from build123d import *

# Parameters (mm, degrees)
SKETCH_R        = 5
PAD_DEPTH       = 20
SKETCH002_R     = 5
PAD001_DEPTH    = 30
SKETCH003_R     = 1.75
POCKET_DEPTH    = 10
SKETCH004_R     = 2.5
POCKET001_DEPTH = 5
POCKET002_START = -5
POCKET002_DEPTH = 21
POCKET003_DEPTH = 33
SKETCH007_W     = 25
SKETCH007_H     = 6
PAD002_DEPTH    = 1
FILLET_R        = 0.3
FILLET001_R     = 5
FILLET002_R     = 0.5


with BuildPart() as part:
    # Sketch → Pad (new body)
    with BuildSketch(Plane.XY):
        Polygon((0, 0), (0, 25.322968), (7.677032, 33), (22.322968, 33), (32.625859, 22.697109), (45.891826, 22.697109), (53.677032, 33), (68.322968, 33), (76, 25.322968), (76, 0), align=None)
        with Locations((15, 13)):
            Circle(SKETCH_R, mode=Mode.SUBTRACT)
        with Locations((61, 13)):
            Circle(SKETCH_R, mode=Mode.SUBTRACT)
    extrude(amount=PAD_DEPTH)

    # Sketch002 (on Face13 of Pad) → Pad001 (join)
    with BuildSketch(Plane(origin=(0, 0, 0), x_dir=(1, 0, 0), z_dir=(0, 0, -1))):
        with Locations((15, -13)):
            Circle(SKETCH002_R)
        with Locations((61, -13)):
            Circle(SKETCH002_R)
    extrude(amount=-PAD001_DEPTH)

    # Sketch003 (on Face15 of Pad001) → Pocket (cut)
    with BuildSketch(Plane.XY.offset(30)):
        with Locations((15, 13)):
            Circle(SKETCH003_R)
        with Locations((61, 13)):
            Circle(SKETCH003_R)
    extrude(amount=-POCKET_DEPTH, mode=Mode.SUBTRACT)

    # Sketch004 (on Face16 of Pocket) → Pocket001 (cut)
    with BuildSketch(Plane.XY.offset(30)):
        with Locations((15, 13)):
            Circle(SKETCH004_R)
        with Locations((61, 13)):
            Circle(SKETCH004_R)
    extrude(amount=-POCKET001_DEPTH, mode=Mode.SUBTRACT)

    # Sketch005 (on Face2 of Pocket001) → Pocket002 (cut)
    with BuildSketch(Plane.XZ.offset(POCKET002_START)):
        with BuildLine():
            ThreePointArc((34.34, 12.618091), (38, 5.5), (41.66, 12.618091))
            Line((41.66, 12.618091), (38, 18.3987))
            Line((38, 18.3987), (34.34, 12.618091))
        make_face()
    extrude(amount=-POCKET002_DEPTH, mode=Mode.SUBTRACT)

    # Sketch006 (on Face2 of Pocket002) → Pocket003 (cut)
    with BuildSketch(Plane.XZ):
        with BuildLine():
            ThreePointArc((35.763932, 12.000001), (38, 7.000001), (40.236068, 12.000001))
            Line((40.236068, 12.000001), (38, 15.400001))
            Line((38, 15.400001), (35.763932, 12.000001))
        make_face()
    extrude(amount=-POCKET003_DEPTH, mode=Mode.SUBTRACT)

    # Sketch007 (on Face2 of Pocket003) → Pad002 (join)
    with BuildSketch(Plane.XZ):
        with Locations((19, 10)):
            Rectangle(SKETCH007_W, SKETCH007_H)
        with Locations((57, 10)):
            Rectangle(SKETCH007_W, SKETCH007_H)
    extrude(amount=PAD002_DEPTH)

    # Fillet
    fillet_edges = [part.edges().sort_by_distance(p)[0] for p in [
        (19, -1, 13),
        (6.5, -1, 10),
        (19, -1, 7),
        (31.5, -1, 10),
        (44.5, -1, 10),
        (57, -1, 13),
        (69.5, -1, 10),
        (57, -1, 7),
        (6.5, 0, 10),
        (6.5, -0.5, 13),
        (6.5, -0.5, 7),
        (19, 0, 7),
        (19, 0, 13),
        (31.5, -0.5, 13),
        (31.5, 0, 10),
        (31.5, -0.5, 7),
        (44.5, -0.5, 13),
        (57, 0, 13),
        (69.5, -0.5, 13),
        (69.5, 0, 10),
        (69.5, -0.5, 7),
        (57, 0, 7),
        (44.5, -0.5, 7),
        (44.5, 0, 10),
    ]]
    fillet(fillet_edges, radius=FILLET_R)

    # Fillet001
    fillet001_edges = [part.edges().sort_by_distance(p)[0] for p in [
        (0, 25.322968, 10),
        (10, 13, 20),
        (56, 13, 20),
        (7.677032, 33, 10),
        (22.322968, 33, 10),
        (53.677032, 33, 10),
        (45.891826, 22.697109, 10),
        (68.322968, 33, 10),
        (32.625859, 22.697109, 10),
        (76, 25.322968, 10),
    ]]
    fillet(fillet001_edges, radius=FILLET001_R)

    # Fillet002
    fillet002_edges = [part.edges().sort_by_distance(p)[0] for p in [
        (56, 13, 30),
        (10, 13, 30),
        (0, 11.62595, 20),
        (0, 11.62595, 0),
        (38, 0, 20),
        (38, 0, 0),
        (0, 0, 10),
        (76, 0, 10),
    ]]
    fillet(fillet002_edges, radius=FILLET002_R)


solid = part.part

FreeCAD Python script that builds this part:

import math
import FreeCAD as App
import Part
import Sketcher
Q = App.Units.Quantity


def edges_at(feature, points):
    """Names of the edges that pass closest to the given points."""
    edges = feature.Shape.Edges
    near = lambda p: min(range(len(edges)), key=lambda i: edges[i].distToShape(Part.Vertex(*p))[0])
    return sorted({f"Edge{near(p) + 1}" for p in points})

doc = App.newDocument("Part")
body = doc.addObject("PartDesign::Body", "Body")

sketch1 = body.newObject("Sketcher::SketchObject", "Sketch")
sketch1.AttachmentSupport = (doc.getObject("XY_Plane"), [""])
sketch1.MapMode = "FlatFace"
sketch1.addGeometry(Part.LineSegment(App.Vector(0, 25, 0), App.Vector(0, 0, 0)), False)
sketch1.addGeometry(Part.LineSegment(App.Vector(0, 0, 0), App.Vector(76, 0, 0)), False)
sketch1.addGeometry(Part.LineSegment(App.Vector(76, 0, 0), App.Vector(76, 25, 0)), False)
sketch1.addGeometry(Part.LineSegment(App.Vector(76, 25, 0), App.Vector(68, 33, 0)), False)
sketch1.addGeometry(Part.LineSegment(App.Vector(68, 33, 0), App.Vector(54, 33, 0)), False)
sketch1.addGeometry(Part.LineSegment(App.Vector(54, 33, 0), App.Vector(46, 23, 0)), False)
sketch1.addGeometry(Part.LineSegment(App.Vector(46, 23, 0), App.Vector(33, 23, 0)), False)
sketch1.addGeometry(Part.LineSegment(App.Vector(33, 23, 0), App.Vector(22, 33, 0)), False)
sketch1.addGeometry(Part.LineSegment(App.Vector(22, 33, 0), App.Vector(8, 33, 0)), False)
sketch1.addGeometry(Part.LineSegment(App.Vector(8, 33, 0), App.Vector(0, 25, 0)), False)
sketch1.addGeometry(Part.Circle(App.Vector(61, 13, 0), App.Vector(0, 0, 1), 5), False)
sketch1.addGeometry(Part.Circle(App.Vector(15, 13, 0), App.Vector(0, 0, 1), 5), False)
sketch1.addConstraint(Sketcher.Constraint("Coincident", 0, 2, 1, 1))
sketch1.addConstraint(Sketcher.Constraint("Coincident", 1, 2, 2, 1))
sketch1.addConstraint(Sketcher.Constraint("Coincident", 2, 2, 3, 1))
sketch1.addConstraint(Sketcher.Constraint("Coincident", 3, 2, 4, 1))
sketch1.addConstraint(Sketcher.Constraint("Coincident", 4, 2, 5, 1))
sketch1.addConstraint(Sketcher.Constraint("Coincident", 5, 2, 6, 1))
sketch1.addConstraint(Sketcher.Constraint("Coincident", 6, 2, 7, 1))
sketch1.addConstraint(Sketcher.Constraint("Coincident", 7, 2, 8, 1))
sketch1.addConstraint(Sketcher.Constraint("Coincident", 8, 2, 9, 1))
sketch1.addConstraint(Sketcher.Constraint("Coincident", 9, 2, 0, 1))
sketch1.addConstraint(Sketcher.Constraint("Vertical", 0))
sketch1.addConstraint(Sketcher.Constraint("Horizontal", 1))
sketch1.addConstraint(Sketcher.Constraint("Vertical", 2))
sketch1.addConstraint(Sketcher.Constraint("Horizontal", 4))
sketch1.addConstraint(Sketcher.Constraint("Horizontal", 6))
sketch1.addConstraint(Sketcher.Constraint("Horizontal", 8))
sketch1.addConstraint(Sketcher.Constraint("Coincident", 0, 2, -1, 1))
sketch1.addConstraint(Sketcher.Constraint("Equal", 10, 11))
sketch1.addConstraint(Sketcher.Constraint("Parallel", 3, 7))
sketch1.addConstraint(Sketcher.Constraint("Perpendicular", 7, 9))
sketch1.addConstraint(Sketcher.Constraint("Horizontal", 10, 3, 11, 3))
sketch1.addConstraint(Sketcher.Constraint("Horizontal", 4, 2, 7, 2))
sketch1.addConstraint(Sketcher.Constraint("Horizontal", 2, 2, 9, 2))
sketch1.addConstraint(Sketcher.Constraint("Equal", 4, 8))
sketch1.addConstraint(Sketcher.Constraint("Equal", 3, 9))
sketch1.addConstraint(Sketcher.Constraint("Diameter", 10, Q("10 mm")))
sketch1.addConstraint(Sketcher.Constraint("DistanceX", 1, 1, 1, 2, Q("76 mm")))
sketch1.addConstraint(Sketcher.Constraint("DistanceX", -1, 1, 10, 3, Q("61 mm")))
sketch1.addConstraint(Sketcher.Constraint("DistanceY", -1, 1, 10, 3, Q("13 mm")))
sketch1.addConstraint(Sketcher.Constraint("DistanceX", -1, 1, 11, 3, Q("15 mm")))
sketch1.addConstraint(Sketcher.Constraint("DistanceY", -1, 1, 3, 2, Q("33 mm")))
sketch1.addConstraint(Sketcher.Constraint("Distance", 5, Q("12.91352 mm")))
sketch1.addConstraint(Sketcher.Constraint("Distance", 7, Q("14.570488 mm")))
sketch1.addConstraint(Sketcher.Constraint("DistanceX", 4, 2, 4, 1, Q("14.645936 mm")))
sketch1.addConstraint(Sketcher.Constraint("DistanceX", 6, 2, 6, 1, Q("13.265967 mm")))
pad1 = body.newObject("PartDesign::Pad", "Pad")
pad1.Profile = sketch1
pad1.Length = 20

sketch2 = body.newObject("Sketcher::SketchObject", "Sketch001")
sketch2.AttachmentSupport = (doc.getObject("XY_Plane"), [""])
sketch2.MapMode = "FlatFace"
sketch2.addGeometry(Part.Circle(App.Vector(15, 13, 0), App.Vector(0, 0, 1), 5), False)
sketch2.addGeometry(Part.Circle(App.Vector(61, 13, 0), App.Vector(0, 0, 1), 5), False)
sketch2.addConstraint(Sketcher.Constraint("Equal", 0, 1))
sketch2.addConstraint(Sketcher.Constraint("Horizontal", 0, 3, 1, 3))
sketch2.addConstraint(Sketcher.Constraint("Diameter", 0, Q("10 mm")))
sketch2.addConstraint(Sketcher.Constraint("DistanceX", -1, 1, 0, 3, Q("15 mm")))
sketch2.addConstraint(Sketcher.Constraint("DistanceY", -1, 1, 0, 3, Q("13 mm")))
sketch2.addConstraint(Sketcher.Constraint("DistanceX", -1, 1, 1, 3, Q("61 mm")))
pad2 = body.newObject("PartDesign::Pad", "Pad001")
pad2.Profile = sketch2
pad2.Length = 30

sketch3 = body.newObject("Sketcher::SketchObject", "Sketch002")
sketch3.AttachmentSupport = (doc.getObject("XY_Plane"), [""])
sketch3.MapMode = "FlatFace"
sketch3.AttachmentOffset = App.Placement(App.Vector(0, 0, 30), App.Rotation())
sketch3.addGeometry(Part.Circle(App.Vector(15, 13, 0), App.Vector(0, 0, 1), 1.8), False)
sketch3.addGeometry(Part.Circle(App.Vector(61, 13, 0), App.Vector(0, 0, 1), 1.8), False)
sketch3.addConstraint(Sketcher.Constraint("Equal", 0, 1))
sketch3.addConstraint(Sketcher.Constraint("Horizontal", 0, 3, 1, 3))
sketch3.addConstraint(Sketcher.Constraint("Diameter", 0, Q("3.5 mm")))
sketch3.addConstraint(Sketcher.Constraint("DistanceX", -1, 1, 0, 3, Q("15 mm")))
sketch3.addConstraint(Sketcher.Constraint("DistanceY", -1, 1, 0, 3, Q("13 mm")))
sketch3.addConstraint(Sketcher.Constraint("DistanceX", -1, 1, 1, 3, Q("61 mm")))
pocket1 = body.newObject("PartDesign::Pocket", "Pocket")
pocket1.Profile = sketch3
pocket1.Length = 10

sketch4 = body.newObject("Sketcher::SketchObject", "Sketch003")
sketch4.AttachmentSupport = (doc.getObject("XY_Plane"), [""])
sketch4.MapMode = "FlatFace"
sketch4.AttachmentOffset = App.Placement(App.Vector(0, 0, 30), App.Rotation())
sketch4.addGeometry(Part.Circle(App.Vector(15, 13, 0), App.Vector(0, 0, 1), 2.5), False)
sketch4.addGeometry(Part.Circle(App.Vector(61, 13, 0), App.Vector(0, 0, 1), 2.5), False)
sketch4.addConstraint(Sketcher.Constraint("Equal", 0, 1))
sketch4.addConstraint(Sketcher.Constraint("Horizontal", 0, 3, 1, 3))
sketch4.addConstraint(Sketcher.Constraint("Diameter", 0, Q("5 mm")))
sketch4.addConstraint(Sketcher.Constraint("DistanceX", -1, 1, 0, 3, Q("15 mm")))
sketch4.addConstraint(Sketcher.Constraint("DistanceY", -1, 1, 0, 3, Q("13 mm")))
sketch4.addConstraint(Sketcher.Constraint("DistanceX", -1, 1, 1, 3, Q("61 mm")))
pocket2 = body.newObject("PartDesign::Pocket", "Pocket001")
pocket2.Profile = sketch4
pocket2.Length = 5

sketch5 = body.newObject("Sketcher::SketchObject", "Sketch004")
sketch5.AttachmentSupport = (doc.getObject("XZ_Plane"), [""])
sketch5.MapMode = "FlatFace"
sketch5.AttachmentOffset = App.Placement(App.Vector(0, 0, -5), App.Rotation())
sketch5.addGeometry(Part.ArcOfCircle(Part.Circle(App.Vector(38, 10, 0), App.Vector(0, 0, 1), 4.5), math.radians(144), math.radians(396)), False)
sketch5.addGeometry(Part.LineSegment(App.Vector(41.7, 12.6, 0), App.Vector(38, 18.4, 0)), False)
sketch5.addGeometry(Part.LineSegment(App.Vector(38, 18.4, 0), App.Vector(34.3, 12.6, 0)), False)
sketch5.addConstraint(Sketcher.Constraint("Coincident", 0, 2, 1, 1))
sketch5.addConstraint(Sketcher.Constraint("Coincident", 1, 2, 2, 1))
sketch5.addConstraint(Sketcher.Constraint("Coincident", 2, 2, 0, 1))
sketch5.addConstraint(Sketcher.Constraint("Horizontal", 0, 2, 2, 2))
sketch5.addConstraint(Sketcher.Constraint("Vertical", 0, 3, 1, 2))
sketch5.addConstraint(Sketcher.Constraint("Radius", 0, Q("4.5 mm")))
sketch5.addConstraint(Sketcher.Constraint("DistanceX", -1, 1, 0, 3, Q("38 mm")))
sketch5.addConstraint(Sketcher.Constraint("DistanceY", -1, 1, 0, 3, Q("10 mm")))
sketch5.addConstraint(Sketcher.Constraint("Angle", 1, Q("122.339998 deg")))
sketch5.addConstraint(Sketcher.Constraint("DistanceX", -1, 1, 0, 2, Q("41.66 mm")))
pocket3 = body.newObject("PartDesign::Pocket", "Pocket002")
pocket3.Profile = sketch5
pocket3.Length = 21

sketch6 = body.newObject("Sketcher::SketchObject", "Sketch005")
sketch6.AttachmentSupport = (doc.getObject("XZ_Plane"), [""])
sketch6.MapMode = "FlatFace"
sketch6.addGeometry(Part.ArcOfCircle(Part.Circle(App.Vector(38, 10, 0), App.Vector(0, 0, 1), 3), math.radians(138), math.radians(402)), False)
sketch6.addGeometry(Part.LineSegment(App.Vector(40.2, 12, 0), App.Vector(38, 15.4, 0)), False)
sketch6.addGeometry(Part.LineSegment(App.Vector(38, 15.4, 0), App.Vector(35.8, 12, 0)), False)
sketch6.addConstraint(Sketcher.Constraint("Coincident", 0, 2, 1, 1))
sketch6.addConstraint(Sketcher.Constraint("Coincident", 1, 2, 2, 1))
sketch6.addConstraint(Sketcher.Constraint("Coincident", 2, 2, 0, 1))
sketch6.addConstraint(Sketcher.Constraint("Horizontal", 0, 2, 2, 2))
sketch6.addConstraint(Sketcher.Constraint("Vertical", 0, 3, 1, 2))
sketch6.addConstraint(Sketcher.Constraint("Radius", 0, Q("3 mm")))
sketch6.addConstraint(Sketcher.Constraint("DistanceX", -1, 1, 0, 3, Q("38 mm")))
sketch6.addConstraint(Sketcher.Constraint("DistanceY", -1, 1, 0, 3, Q("10.000001 mm")))
sketch6.addConstraint(Sketcher.Constraint("DistanceY", -1, 1, 0, 2, Q("12.000001 mm")))
sketch6.addConstraint(Sketcher.Constraint("DistanceY", -1, 1, 1, 2, Q("15.400001 mm")))
pocket4 = body.newObject("PartDesign::Pocket", "Pocket003")
pocket4.Profile = sketch6
pocket4.Length = 33

sketch7 = body.newObject("Sketcher::SketchObject", "Sketch006")
sketch7.AttachmentSupport = (doc.getObject("XZ_Plane"), [""])
sketch7.MapMode = "FlatFace"
sketch7.addGeometry(Part.LineSegment(App.Vector(6, 13, 0), App.Vector(6, 7, 0)), False)
sketch7.addGeometry(Part.LineSegment(App.Vector(6, 7, 0), App.Vector(32, 7, 0)), False)
sketch7.addGeometry(Part.LineSegment(App.Vector(32, 7, 0), App.Vector(32, 13, 0)), False)
sketch7.addGeometry(Part.LineSegment(App.Vector(32, 13, 0), App.Vector(6, 13, 0)), False)
sketch7.addGeometry(Part.LineSegment(App.Vector(44, 13, 0), App.Vector(44, 7, 0)), False)
sketch7.addGeometry(Part.LineSegment(App.Vector(44, 7, 0), App.Vector(70, 7, 0)), False)
sketch7.addGeometry(Part.LineSegment(App.Vector(70, 7, 0), App.Vector(70, 13, 0)), False)
sketch7.addGeometry(Part.LineSegment(App.Vector(70, 13, 0), App.Vector(44, 13, 0)), False)
sketch7.addConstraint(Sketcher.Constraint("Coincident", 0, 2, 1, 1))
sketch7.addConstraint(Sketcher.Constraint("Coincident", 1, 2, 2, 1))
sketch7.addConstraint(Sketcher.Constraint("Coincident", 2, 2, 3, 1))
sketch7.addConstraint(Sketcher.Constraint("Coincident", 3, 2, 0, 1))
sketch7.addConstraint(Sketcher.Constraint("Coincident", 4, 2, 5, 1))
sketch7.addConstraint(Sketcher.Constraint("Coincident", 5, 2, 6, 1))
sketch7.addConstraint(Sketcher.Constraint("Coincident", 6, 2, 7, 1))
sketch7.addConstraint(Sketcher.Constraint("Coincident", 7, 2, 4, 1))
sketch7.addConstraint(Sketcher.Constraint("Vertical", 0))
sketch7.addConstraint(Sketcher.Constraint("Horizontal", 1))
sketch7.addConstraint(Sketcher.Constraint("Vertical", 2))
sketch7.addConstraint(Sketcher.Constraint("Horizontal", 3))
sketch7.addConstraint(Sketcher.Constraint("Vertical", 4))
sketch7.addConstraint(Sketcher.Constraint("Horizontal", 5))
sketch7.addConstraint(Sketcher.Constraint("Vertical", 6))
sketch7.addConstraint(Sketcher.Constraint("Horizontal", 7))
sketch7.addConstraint(Sketcher.Constraint("Horizontal", 1, 2, 4, 2))
sketch7.addConstraint(Sketcher.Constraint("Horizontal", 3, 2, 6, 2))
sketch7.addConstraint(Sketcher.Constraint("Equal", 3, 5))
sketch7.addConstraint(Sketcher.Constraint("DistanceX", 1, 1, 1, 2, Q("25 mm")))
sketch7.addConstraint(Sketcher.Constraint("DistanceY", 0, 2, 0, 1, Q("6 mm")))
sketch7.addConstraint(Sketcher.Constraint("DistanceY", -1, 1, 0, 2, Q("7 mm")))
sketch7.addConstraint(Sketcher.Constraint("DistanceX", 1, 2, 4, 2, Q("13 mm")))
sketch7.addConstraint(Sketcher.Constraint("DistanceX", -1, 1, 0, 2, Q("6.5 mm")))
pad3 = body.newObject("PartDesign::Pad", "Pad002")
pad3.Profile = sketch7
pad3.Length = 1
doc.recompute()

fillet = body.newObject("PartDesign::Fillet", "Fillet")
fillet.Base = (pad3, edges_at(pad3, [
    (19, -1, 13),
    (6.5, -1, 10),
    (19, -1, 7),
    (31.5, -1, 10),
    (44.5, -1, 10),
    (57, -1, 13),
    (69.5, -1, 10),
    (57, -1, 7),
    (6.5, 0, 10),
    (6.5, -0.5, 13),
    (6.5, -0.5, 7),
    (19, 0, 7),
    (19, 0, 13),
    (31.5, -0.5, 13),
    (31.5, 0, 10),
    (31.5, -0.5, 7),
    (44.5, -0.5, 13),
    (57, 0, 13),
    (69.5, -0.5, 13),
    (69.5, 0, 10),
    (69.5, -0.5, 7),
    (57, 0, 7),
    (44.5, -0.5, 7),
    (44.5, 0, 10),
]))
fillet.Radius = 0.3
doc.recompute()

fillet2 = body.newObject("PartDesign::Fillet", "Fillet001")
fillet2.Base = (fillet, edges_at(fillet, [
    (0, 25.323, 10),
    (10, 13, 20),
    (56, 13, 20),
    (7.677, 33, 10),
    (22.323, 33, 10),
    (53.677, 33, 10),
    (45.892, 22.697, 10),
    (68.323, 33, 10),
    (32.626, 22.697, 10),
    (76, 25.323, 10),
]))
fillet2.Radius = 5
doc.recompute()

fillet3 = body.newObject("PartDesign::Fillet", "Fillet002")
fillet3.Base = (fillet2, edges_at(fillet2, [
    (56, 13, 30),
    (10, 13, 30),
    (0, 11.626, 20),
    (0, 11.626, 0),
    (38, 0, 20),
    (38, 0, 0),
    (0, 0, 10),
    (76, 0, 10),
]))
fillet3.Radius = 0.5

doc.recompute()
